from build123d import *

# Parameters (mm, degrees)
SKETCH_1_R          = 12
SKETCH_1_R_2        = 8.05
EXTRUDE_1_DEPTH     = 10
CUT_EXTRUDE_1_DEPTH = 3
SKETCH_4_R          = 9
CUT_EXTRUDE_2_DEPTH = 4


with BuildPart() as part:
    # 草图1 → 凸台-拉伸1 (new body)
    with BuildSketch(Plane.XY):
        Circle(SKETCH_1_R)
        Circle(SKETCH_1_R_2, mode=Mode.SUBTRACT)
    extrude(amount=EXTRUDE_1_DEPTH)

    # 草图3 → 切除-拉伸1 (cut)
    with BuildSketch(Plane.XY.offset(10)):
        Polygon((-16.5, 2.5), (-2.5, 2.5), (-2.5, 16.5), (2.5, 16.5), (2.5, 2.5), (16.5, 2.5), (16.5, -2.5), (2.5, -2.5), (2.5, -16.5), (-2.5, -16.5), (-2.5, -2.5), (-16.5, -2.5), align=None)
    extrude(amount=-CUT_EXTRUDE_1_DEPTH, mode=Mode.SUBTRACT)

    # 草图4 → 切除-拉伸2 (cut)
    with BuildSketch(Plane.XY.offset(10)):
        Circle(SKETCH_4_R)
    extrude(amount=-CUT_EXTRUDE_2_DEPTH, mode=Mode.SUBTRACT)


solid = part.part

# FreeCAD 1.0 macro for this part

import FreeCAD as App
import Part
import Sketcher
from FreeCAD import Vector


def add_polygon(sketch, points):
    """Adds a closed chain of lines whose ends are joined by coincident constraints."""
    first, n = sketch.GeometryCount, len(points)
    for a, b in zip(points, points[1:] + points[:1]):
        sketch.addGeometry(Part.LineSegment(App.Vector(*a, 0), App.Vector(*b, 0)), False)
    for i in range(n):
        sketch.addConstraint(Sketcher.Constraint("Coincident", first + i, 2, first + (i + 1) % n, 1))

doc = App.newDocument("Part")
body = doc.addObject("PartDesign::Body", "Body")

# Sketch on XY plane
sketch1 = body.newObject("Sketcher::SketchObject", "Sketch")
sketch1.AttachmentSupport = (doc.getObject("XY_Plane"), [""])
sketch1.MapMode = "FlatFace"
sketch1.addGeometry([
    Part.Circle(Vector(0, 0, 0), Vector(0, 0, 1), 12),
    Part.Circle(Vector(0, 0, 0), Vector(0, 0, 1), 8),
], False)
sketch1.addConstraint([
    Sketcher.Constraint("Coincident", 0, 3, -1, 1),
    Sketcher.Constraint("Coincident", 1, 3, -1, 1),
    Sketcher.Constraint("Diameter", 0, 24.0),
    Sketcher.Constraint("Diameter", 1, 16.1),
])
pad1 = body.newObject("PartDesign::Pad", "Pad")
pad1.Profile = sketch1
pad1.Length = 10

# Sketch on XY plane
sketch2 = body.newObject("Sketcher::SketchObject", "Sketch001")
sketch2.AttachmentSupport = (doc.getObject("XY_Plane"), [""])
sketch2.MapMode = "FlatFace"
sketch2.AttachmentOffset = App.Placement(Vector(0, 0, 10), App.Rotation())
add_polygon(sketch2, [(-2, 2), (-16, 2), (-16, -2), (-2, -2), (-2, -16), (2, -16), (2, -2), (16, -2), (16, 2), (2, 2), (2, 16), (-2, 16)])  # lines 0-11
sketch2.addConstraint([
    Sketcher.Constraint("Horizontal", 0),
    Sketcher.Constraint("Vertical", 1),
    Sketcher.Constraint("Horizontal", 2),
    Sketcher.Constraint("Vertical", 3),
    Sketcher.Constraint("Horizontal", 4),
    Sketcher.Constraint("Vertical", 5),
    Sketcher.Constraint("Horizontal", 6),
    Sketcher.Constraint("Vertical", 7),
    Sketcher.Constraint("Horizontal", 8),
    Sketcher.Constraint("Vertical", 9),
    Sketcher.Constraint("Horizontal", 10),
    Sketcher.Constraint("Vertical", 11),
    Sketcher.Constraint("Symmetric", 0, 2, 6, 2, -1, 1),
    Sketcher.Constraint("Symmetric", 2, 2, 8, 2, -1, 1),
    Sketcher.Constraint("Symmetric", 4, 2, 10, 2, -1, 1),
    Sketcher.Constraint("Symmetric", 2, 2, 5, 2, -2),
    Sketcher.Constraint("Equal", 10, 1),
    Sketcher.Constraint("Equal", 8, 3),
    Sketcher.Constraint("DistanceX", 0, 2, 0, 1, 14.0),
    Sketcher.Constraint("DistanceX", 4, 1, 4, 2, 5.0),
])
pocket1 = body.newObject("PartDesign::Pocket", "Pocket")
pocket1.Profile = sketch2
pocket1.Length = 3

# Sketch on XY plane
sketch3 = body.newObject("Sketcher::SketchObject", "Sketch002")
sketch3.AttachmentSupport = (doc.getObject("XY_Plane"), [""])
sketch3.MapMode = "FlatFace"
sketch3.AttachmentOffset = App.Placement(Vector(0, 0, 10), App.Rotation())
sketch3.addGeometry(Part.Circle(Vector(0, 0, 0), Vector(0, 0, 1), 9), False)
sketch3.addConstraint([
    Sketcher.Constraint("Coincident", 0, 3, -1, 1),
    Sketcher.Constraint("Diameter", 0, 18.0),
])
pocket2 = body.newObject("PartDesign::Pocket", "Pocket001")
pocket2.Profile = sketch3
pocket2.Length = 4

doc.recompute()
